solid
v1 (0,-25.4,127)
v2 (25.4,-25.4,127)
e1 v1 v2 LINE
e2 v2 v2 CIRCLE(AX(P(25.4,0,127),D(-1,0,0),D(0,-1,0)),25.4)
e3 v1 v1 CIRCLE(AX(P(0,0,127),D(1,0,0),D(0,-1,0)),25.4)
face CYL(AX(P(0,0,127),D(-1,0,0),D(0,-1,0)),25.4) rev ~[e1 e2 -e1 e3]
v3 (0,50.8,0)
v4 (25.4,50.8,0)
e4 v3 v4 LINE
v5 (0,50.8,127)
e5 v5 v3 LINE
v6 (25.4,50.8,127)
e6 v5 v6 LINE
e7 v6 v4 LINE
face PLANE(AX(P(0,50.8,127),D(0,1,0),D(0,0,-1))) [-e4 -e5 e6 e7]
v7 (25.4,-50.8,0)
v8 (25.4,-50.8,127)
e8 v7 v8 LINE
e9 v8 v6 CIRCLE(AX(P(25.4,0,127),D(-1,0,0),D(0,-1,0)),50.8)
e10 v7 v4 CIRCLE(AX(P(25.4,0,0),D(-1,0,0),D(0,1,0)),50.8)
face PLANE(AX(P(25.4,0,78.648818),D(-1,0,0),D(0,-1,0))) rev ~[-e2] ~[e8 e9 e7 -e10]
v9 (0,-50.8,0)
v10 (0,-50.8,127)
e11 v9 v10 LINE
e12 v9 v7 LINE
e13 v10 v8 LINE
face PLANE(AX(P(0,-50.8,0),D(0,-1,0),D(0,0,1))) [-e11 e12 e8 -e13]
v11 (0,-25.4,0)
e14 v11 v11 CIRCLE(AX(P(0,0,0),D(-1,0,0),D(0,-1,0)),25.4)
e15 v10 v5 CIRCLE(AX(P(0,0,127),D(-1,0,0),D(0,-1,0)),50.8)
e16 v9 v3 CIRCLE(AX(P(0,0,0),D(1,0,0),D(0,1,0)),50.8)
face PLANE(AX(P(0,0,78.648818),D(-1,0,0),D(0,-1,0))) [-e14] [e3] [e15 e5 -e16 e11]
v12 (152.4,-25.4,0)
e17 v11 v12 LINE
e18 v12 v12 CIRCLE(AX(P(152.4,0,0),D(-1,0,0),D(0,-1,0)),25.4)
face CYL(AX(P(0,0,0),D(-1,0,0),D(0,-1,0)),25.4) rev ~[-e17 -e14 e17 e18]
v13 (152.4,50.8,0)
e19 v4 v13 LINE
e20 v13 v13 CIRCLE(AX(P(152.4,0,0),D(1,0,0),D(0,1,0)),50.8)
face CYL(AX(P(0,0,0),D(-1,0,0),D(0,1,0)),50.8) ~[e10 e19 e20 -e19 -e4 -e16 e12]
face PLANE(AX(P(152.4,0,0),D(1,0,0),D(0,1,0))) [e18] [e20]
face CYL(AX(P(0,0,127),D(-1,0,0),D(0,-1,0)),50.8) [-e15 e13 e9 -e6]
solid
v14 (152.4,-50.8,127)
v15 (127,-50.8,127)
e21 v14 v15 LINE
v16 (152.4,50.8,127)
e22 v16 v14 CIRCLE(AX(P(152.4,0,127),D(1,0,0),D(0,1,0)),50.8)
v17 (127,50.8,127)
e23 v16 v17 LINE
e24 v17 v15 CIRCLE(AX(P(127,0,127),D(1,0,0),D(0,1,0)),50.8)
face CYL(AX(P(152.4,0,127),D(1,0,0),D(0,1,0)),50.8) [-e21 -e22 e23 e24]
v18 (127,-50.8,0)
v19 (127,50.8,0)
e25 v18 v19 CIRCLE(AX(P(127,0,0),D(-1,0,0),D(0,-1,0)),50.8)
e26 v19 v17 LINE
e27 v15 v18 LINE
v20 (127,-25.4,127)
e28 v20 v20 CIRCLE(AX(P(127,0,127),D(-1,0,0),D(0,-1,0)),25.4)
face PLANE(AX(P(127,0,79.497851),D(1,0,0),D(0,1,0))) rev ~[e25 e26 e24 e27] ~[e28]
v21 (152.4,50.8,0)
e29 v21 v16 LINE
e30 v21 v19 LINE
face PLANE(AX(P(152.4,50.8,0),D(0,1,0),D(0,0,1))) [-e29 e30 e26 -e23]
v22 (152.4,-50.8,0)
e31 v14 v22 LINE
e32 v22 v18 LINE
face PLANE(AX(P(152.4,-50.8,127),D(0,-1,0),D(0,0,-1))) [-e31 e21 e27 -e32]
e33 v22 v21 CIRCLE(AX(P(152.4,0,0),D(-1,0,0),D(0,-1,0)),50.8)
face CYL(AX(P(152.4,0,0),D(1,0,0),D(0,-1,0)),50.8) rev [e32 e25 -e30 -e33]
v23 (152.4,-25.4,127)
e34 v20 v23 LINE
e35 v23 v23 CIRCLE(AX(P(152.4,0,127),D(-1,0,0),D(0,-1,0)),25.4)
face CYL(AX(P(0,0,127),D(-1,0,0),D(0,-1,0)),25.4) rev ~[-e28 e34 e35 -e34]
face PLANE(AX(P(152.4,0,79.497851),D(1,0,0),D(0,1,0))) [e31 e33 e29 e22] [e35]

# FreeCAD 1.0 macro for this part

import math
import FreeCAD as App
import Part
import Sketcher

V = App.Vector
Q = App.Units.Quantity

doc = App.newDocument("Part")
body = doc.addObject("PartDesign::Body", "Body")

# Sketch on YZ plane
sketch1 = body.newObject("Sketcher::SketchObject", "Sketch")
sketch1.AttachmentSupport = (doc.getObject("YZ_Plane"), [""])
sketch1.MapMode = "FlatFace"
sketch1.addGeometry(Part.Circle(V(0, 0, 0), V(0, 0, 1), 51), False)
sketch1.addConstraint(Sketcher.Constraint("Coincident", 0, 3, -1, 1))
sketch1.addConstraint(Sketcher.Constraint("Diameter", 0, Q("4 in")))
pad1 = body.newObject("PartDesign::Pad", "Pad")
pad1.Profile = sketch1
pad1.Length = Q("6 in")

# Sketch on YZ plane
sketch2 = body.newObject("Sketcher::SketchObject", "Sketch001")
sketch2.AttachmentSupport = (doc.getObject("YZ_Plane"), [""])
sketch2.MapMode = "FlatFace"
sketch2.addGeometry(Part.LineSegment(V(51, 127, 0), V(51, 0, 0)), False)
sketch2.addGeometry(Part.LineSegment(V(51, 0, 0), V(-51, 0, 0)), False)
sketch2.addGeometry(Part.LineSegment(V(-51, 0, 0), V(-51, 127, 0)), False)
sketch2.addGeometry(Part.ArcOfCircle(Part.Circle(V(0, 127, 0), V(0, 0, 1), 51), math.radians(0), math.radians(180)), False)
sketch2.addConstraint(Sketcher.Constraint("Coincident", 0, 2, 1, 1))
sketch2.addConstraint(Sketcher.Constraint("Coincident", 1, 2, 2, 1))
sketch2.addConstraint(Sketcher.Constraint("Tangent", 2, 2, 3, 2))
sketch2.addConstraint(Sketcher.Constraint("Tangent", 3, 1, 0, 1))
sketch2.addConstraint(Sketcher.Constraint("Vertical", 0))
sketch2.addConstraint(Sketcher.Constraint("Horizontal", 1))
sketch2.addConstraint(Sketcher.Constraint("Vertical", 2))
sketch2.addConstraint(Sketcher.Constraint("Symmetric", 0, 2, 1, 2, -1, 1))
sketch2.addConstraint(Sketcher.Constraint("Radius", 3, Q("2 in")))
sketch2.addConstraint(Sketcher.Constraint("DistanceY", 0, 2, 0, 1, Q("5 in")))
pad2 = body.newObject("PartDesign::Pad", "Pad001")
pad2.Profile = sketch2
pad2.Length = Q("1 in")
body2 = doc.addObject("PartDesign::Body", "Body001")

# Sketch on YZ plane
sketch3 = body2.newObject("Sketcher::SketchObject", "Sketch002")
sketch3.AttachmentSupport = (doc.getObject("YZ_Plane001"), [""])
sketch3.MapMode = "FlatFace"
sketch3.AttachmentOffset = App.Placement(V(0, 0, 6 * 25.4), App.Rotation())
sketch3.addGeometry(Part.LineSegment(V(-51, 127, 0), V(-51, 0, 0)), False)
sketch3.addGeometry(Part.ArcOfCircle(Part.Circle(V(0, 0, 0), V(0, 0, 1), 51), math.radians(0), math.radians(180)), False)
sketch3.addGeometry(Part.LineSegment(V(51, 0, 0), V(51, 127, 0)), False)
sketch3.addGeometry(Part.ArcOfCircle(Part.Circle(V(0, 127, 0), V(0, 0, 1), 51), math.radians(0), math.radians(180)), False)
sketch3.addConstraint(Sketcher.Constraint("Tangent", 0, 2, 1, 2))
sketch3.addConstraint(Sketcher.Constraint("Tangent", 1, 1, 2, 1))
sketch3.addConstraint(Sketcher.Constraint("Tangent", 2, 2, 3, 1))
sketch3.addConstraint(Sketcher.Constraint("Tangent", 3, 2, 0, 1))
sketch3.addConstraint(Sketcher.Constraint("Vertical", 0))
sketch3.addConstraint(Sketcher.Constraint("Vertical", 2))
sketch3.addConstraint(Sketcher.Constraint("Coincident", 1, 3, -1, 1))
sketch3.addConstraint(Sketcher.Constraint("Radius", 1, Q("2 in")))
sketch3.addConstraint(Sketcher.Constraint("DistanceY", 0, 2, 0, 1, Q("5 in")))
pad3 = body2.newObject("PartDesign::Pad", "Pad002")
pad3.Profile = sketch3
pad3.Length = Q("1 in")
pad3.Reversed = True
body3 = doc.addObject("PartDesign::Body", "Body002")
body3.AllowCompound = True

# Sketch on YZ plane
sketch4 = body3.newObject("Sketcher::SketchObject", "Sketch003")
sketch4.AttachmentSupport = (doc.getObject("YZ_Plane002"), [""])
sketch4.MapMode = "FlatFace"
sketch4.addGeometry(Part.Circle(V(0, 127, 0), V(0, 0, 1), 25), False)
sketch4.addGeometry(Part.Circle(V(0, 0, 0), V(0, 0, 1), 25), False)
sketch4.addConstraint(Sketcher.Constraint("Coincident", 1, 3, -1, 1))
sketch4.addConstraint(Sketcher.Constraint("Equal", 0, 1))
sketch4.addConstraint(Sketcher.Constraint("PointOnObject", 0, 3, -2))
sketch4.addConstraint(Sketcher.Constraint("Diameter", 0, Q("2 in")))
sketch4.addConstraint(Sketcher.Constraint("DistanceY", -1, 1, 0, 3, Q("5 in")))
pad4 = body3.newObject("PartDesign::Pad", "Pad003")
pad4.Profile = sketch4
pad4.Length = 152.401
doc.recompute()

body4 = doc.addObject("PartDesign::Body", "Body003")
body4.BaseFeature = body3
boolean = body.newObject("PartDesign::Boolean", "Boolean")
boolean.Type = "Cut"
boolean.addObjects([body4])
doc.recompute()

# Sketch on YZ plane
sketch5 = body.newObject("Sketcher::SketchObject", "Sketch004")
sketch5.AttachmentSupport = (doc.getObject("YZ_Plane"), [""])
sketch5.MapMode = "FlatFace"
sketch5.AttachmentOffset = App.Placement(V(0, 0, 6 * 25.4), App.Rotation())
sketch5.addGeometry(Part.Circle(V(0, 127, 0), V(0, 0, 1), 25), False)
sketch5.addConstraint(Sketcher.Constraint("PointOnObject", 0, 3, -2))
sketch5.addConstraint(Sketcher.Constraint("Diameter", 0, Q("2 in")))
sketch5.addConstraint(Sketcher.Constraint("DistanceY", -1, 1, 0, 3, Q("5 in")))
pocket1 = body.newObject("PartDesign::Pocket", "Pocket")
pocket1.Profile = sketch5
pocket1.Type = "ThroughAll"
doc.recompute()

boolean2 = body2.newObject("PartDesign::Boolean", "Boolean001")
boolean2.Type = "Cut"
boolean2.addObjects([body3])

doc.recompute()
